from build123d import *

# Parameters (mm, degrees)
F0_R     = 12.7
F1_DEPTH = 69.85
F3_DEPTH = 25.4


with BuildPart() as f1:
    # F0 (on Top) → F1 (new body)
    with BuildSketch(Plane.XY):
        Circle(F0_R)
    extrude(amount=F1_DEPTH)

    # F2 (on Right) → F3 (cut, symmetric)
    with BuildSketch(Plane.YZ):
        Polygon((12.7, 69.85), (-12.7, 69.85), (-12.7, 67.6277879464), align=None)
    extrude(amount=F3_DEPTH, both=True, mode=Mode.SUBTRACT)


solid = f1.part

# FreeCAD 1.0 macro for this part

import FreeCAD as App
import Part
import Sketcher
from FreeCAD import Vector
Q = App.Units.Quantity

doc = App.newDocument("Part")
params = doc.addObject("Spreadsheet::Sheet", "Params")
for row, (alias, value) in enumerate([
    ("sketch1_diameter", "1 in"),
    ("pad1_length", "2.75 in"),
    ("sketch2_width", "1 in"),
    ("pocket1_length", "2 in"),
], start=1):
    params.set(f"A{row}", alias)
    params.set(f"B{row}", "=" + value)
    params.setAlias(f"B{row}", alias)

body = doc.addObject("PartDesign::Body", "Body")

sketch1 = body.newObject("Sketcher::SketchObject", "Sketch")
sketch1.AttachmentSupport = (doc.getObject("XY_Plane"), [""])
sketch1.MapMode = "FlatFace"
sketch1.addGeometry(Part.Circle(Vector(0, 0, 0), Vector(0, 0, 1), 13), False)
sketch1.addConstraint(Sketcher.Constraint("Coincident", 0, 3, -1, 1))
sketch1.addConstraint(Sketcher.Constraint("Diameter", 0, Q("1 in")))
sketch1.setExpression("Constraints[1]", "Params.sketch1_diameter")
pad1 = body.newObject("PartDesign::Pad", "Pad")
pad1.Profile = sketch1
pad1.setExpression("Length", "Params.pad1_length")

sketch2 = body.newObject("Sketcher::SketchObject", "Sketch001")
sketch2.AttachmentSupport = (doc.getObject("YZ_Plane"), [""])
sketch2.MapMode = "FlatFace"
sketch2.addGeometry(Part.LineSegment(Vector(12.7, 69.8, 0), Vector(-12.7, 69.8, 0)), False)
sketch2.addGeometry(Part.LineSegment(Vector(-12.7, 69.8, 0), Vector(-12.7, 67.6, 0)), False)
sketch2.addGeometry(Part.LineSegment(Vector(-12.7, 67.6, 0), Vector(12.7, 69.8, 0)), False)
sketch2.addConstraint(Sketcher.Constraint("Coincident", 0, 2, 1, 1))
sketch2.addConstraint(Sketcher.Constraint("Coincident", 1, 2, 2, 1))
sketch2.addConstraint(Sketcher.Constraint("Coincident", 2, 2, 0, 1))
sketch2.addConstraint(Sketcher.Constraint("Horizontal", 0))
sketch2.addConstraint(Sketcher.Constraint("Vertical", 1))
sketch2.addConstraint(Sketcher.Constraint("DistanceX", 0, 2, 0, 1, Q("1 in")))
sketch2.addConstraint(Sketcher.Constraint("Angle", 2, Q("5 deg")))
sketch2.addConstraint(Sketcher.Constraint("DistanceX", 0, 2, -1, 1, Q("0.5 in")))
sketch2.addConstraint(Sketcher.Constraint("DistanceY", -1, 1, 0, 2, Q("2.75 in")))
sketch2.setExpression("Constraints[5]", "Params.sketch2_width")
pocket1 = body.newObject("PartDesign::Pocket", "Pocket")
pocket1.Profile = sketch2
pocket1.setExpression("Length", "Params.pocket1_length")
pocket1.Midplane = True

doc.recompute()
